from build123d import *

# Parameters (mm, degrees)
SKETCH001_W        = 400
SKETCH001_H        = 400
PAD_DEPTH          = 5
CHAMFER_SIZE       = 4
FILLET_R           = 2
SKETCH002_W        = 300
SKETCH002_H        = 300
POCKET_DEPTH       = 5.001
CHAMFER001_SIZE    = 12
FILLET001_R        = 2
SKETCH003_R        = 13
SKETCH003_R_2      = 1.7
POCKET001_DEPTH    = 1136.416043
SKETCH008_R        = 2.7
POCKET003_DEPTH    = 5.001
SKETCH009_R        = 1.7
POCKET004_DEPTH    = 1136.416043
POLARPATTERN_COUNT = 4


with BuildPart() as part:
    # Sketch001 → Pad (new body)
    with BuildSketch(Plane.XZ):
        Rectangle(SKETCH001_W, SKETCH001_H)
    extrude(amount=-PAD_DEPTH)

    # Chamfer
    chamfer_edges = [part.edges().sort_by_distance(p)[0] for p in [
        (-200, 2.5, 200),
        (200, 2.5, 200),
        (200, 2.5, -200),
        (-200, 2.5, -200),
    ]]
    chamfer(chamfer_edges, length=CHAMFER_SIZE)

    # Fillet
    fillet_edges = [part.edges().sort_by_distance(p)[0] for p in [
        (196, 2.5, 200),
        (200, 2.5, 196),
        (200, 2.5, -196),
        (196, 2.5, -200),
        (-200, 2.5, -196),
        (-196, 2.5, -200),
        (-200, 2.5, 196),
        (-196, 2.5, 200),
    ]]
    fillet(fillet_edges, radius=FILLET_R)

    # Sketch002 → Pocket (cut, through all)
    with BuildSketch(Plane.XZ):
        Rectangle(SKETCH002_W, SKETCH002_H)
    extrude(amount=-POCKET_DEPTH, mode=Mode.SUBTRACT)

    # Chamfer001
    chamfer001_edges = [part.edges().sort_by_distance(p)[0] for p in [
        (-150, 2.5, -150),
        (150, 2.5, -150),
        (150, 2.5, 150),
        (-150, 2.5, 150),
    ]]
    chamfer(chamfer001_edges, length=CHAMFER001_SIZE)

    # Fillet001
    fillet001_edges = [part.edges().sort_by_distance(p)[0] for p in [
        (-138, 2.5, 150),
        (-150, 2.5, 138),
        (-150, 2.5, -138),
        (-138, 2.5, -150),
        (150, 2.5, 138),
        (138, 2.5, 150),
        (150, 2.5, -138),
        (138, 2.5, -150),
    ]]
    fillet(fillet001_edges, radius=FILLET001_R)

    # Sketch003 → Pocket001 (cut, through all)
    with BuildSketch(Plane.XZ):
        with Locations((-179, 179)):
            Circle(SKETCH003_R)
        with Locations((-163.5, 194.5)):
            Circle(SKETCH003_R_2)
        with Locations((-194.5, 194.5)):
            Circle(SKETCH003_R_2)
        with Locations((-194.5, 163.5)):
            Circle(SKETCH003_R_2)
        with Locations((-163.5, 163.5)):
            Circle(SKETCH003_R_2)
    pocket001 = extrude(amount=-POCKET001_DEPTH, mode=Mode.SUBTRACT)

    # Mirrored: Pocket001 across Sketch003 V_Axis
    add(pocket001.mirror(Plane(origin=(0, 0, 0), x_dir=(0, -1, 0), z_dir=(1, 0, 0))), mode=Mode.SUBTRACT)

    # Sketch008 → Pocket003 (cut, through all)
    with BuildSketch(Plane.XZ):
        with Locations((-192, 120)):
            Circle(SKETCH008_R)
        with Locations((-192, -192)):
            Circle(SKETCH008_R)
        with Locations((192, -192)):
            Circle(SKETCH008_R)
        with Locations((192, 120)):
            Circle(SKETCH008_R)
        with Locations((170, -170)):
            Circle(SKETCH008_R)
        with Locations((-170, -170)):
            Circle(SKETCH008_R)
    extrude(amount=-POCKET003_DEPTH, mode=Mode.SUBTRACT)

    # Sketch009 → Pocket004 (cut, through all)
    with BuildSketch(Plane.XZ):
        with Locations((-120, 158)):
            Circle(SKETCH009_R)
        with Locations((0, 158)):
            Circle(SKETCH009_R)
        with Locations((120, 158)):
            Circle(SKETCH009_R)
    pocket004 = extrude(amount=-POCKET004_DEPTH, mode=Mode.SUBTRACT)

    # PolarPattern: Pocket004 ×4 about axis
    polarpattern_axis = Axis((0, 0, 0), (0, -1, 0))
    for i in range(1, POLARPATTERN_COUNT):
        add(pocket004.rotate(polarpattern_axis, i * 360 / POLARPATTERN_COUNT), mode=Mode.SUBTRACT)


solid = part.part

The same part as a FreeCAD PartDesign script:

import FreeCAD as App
import Part
import Sketcher
from FreeCAD import Vector
Q = App.Units.Quantity


def edges_at(feature, points):
    """Names of the edges that pass closest to the given points."""
    edges = feature.Shape.Edges
    near = lambda p: min(range(len(edges)), key=lambda i: edges[i].distToShape(Part.Vertex(*p))[0])
    return sorted({f"Edge{near(p) + 1}" for p in points})


def add_polygon(sketch, points):
    """Adds a closed chain of lines whose ends are joined by coincident constraints."""
    first, n = sketch.GeometryCount, len(points)
    for a, b in zip(points, points[1:] + points[:1]):
        sketch.addGeometry(Part.LineSegment(App.Vector(*a, 0), App.Vector(*b, 0)), False)
    for i in range(n):
        sketch.addConstraint(Sketcher.Constraint("Coincident", first + i, 2, first + (i + 1) % n, 1))

doc = App.newDocument("Part")
body = doc.addObject("PartDesign::Body", "Body")

# Sketch on XZ plane
sketch1 = body.newObject("Sketcher::SketchObject", "Sketch")
sketch1.AttachmentSupport = (doc.getObject("XZ_Plane"), [""])
sketch1.MapMode = "FlatFace"
add_polygon(sketch1, [(-200, 200), (-200, -200), (200, -200), (200, 200)])  # lines 0-3
sketch1.addConstraint([
    Sketcher.Constraint("Vertical", 0),
    Sketcher.Constraint("Horizontal", 1),
    Sketcher.Constraint("Vertical", 2),
    Sketcher.Constraint("Horizontal", 3),
    Sketcher.Constraint("Symmetric", 0, 2, 2, 2, -1, 1),
    Sketcher.Constraint("Equal", 3, 0),
    Sketcher.Constraint("DistanceX", 1, 1, 1, 2, Q("400 mm")),
])
pad1 = body.newObject("PartDesign::Pad", "Pad")
pad1.Profile = sketch1
pad1.Length = 5
pad1.Reversed = True
doc.recompute()

chamfer = body.newObject("PartDesign::Chamfer", "Chamfer")
chamfer.Base = (pad1, edges_at(pad1, [
    (-200, 2.5, 200),
    (200, 2.5, 200),
    (200, 2.5, -200),
    (-200, 2.5, -200),
]))
chamfer.Size = 4
doc.recompute()

fillet = body.newObject("PartDesign::Fillet", "Fillet")
fillet.Base = (chamfer, edges_at(chamfer, [
    (196, 2.5, 200),
    (200, 2.5, 196),
    (200, 2.5, -196),
    (196, 2.5, -200),
    (-200, 2.5, -196),
    (-196, 2.5, -200),
    (-200, 2.5, 196),
    (-196, 2.5, 200),
]))
fillet.Radius = 2

# Sketch on XZ plane
sketch2 = body.newObject("Sketcher::SketchObject", "Sketch001")
sketch2.AttachmentSupport = (doc.getObject("XZ_Plane"), [""])
sketch2.MapMode = "FlatFace"
add_polygon(sketch2, [(-150, 150), (-150, -150), (150, -150), (150, 150)])  # lines 0-3
sketch2.addConstraint([
    Sketcher.Constraint("Vertical", 0),
    Sketcher.Constraint("Horizontal", 1),
    Sketcher.Constraint("Vertical", 2),
    Sketcher.Constraint("Horizontal", 3),
    Sketcher.Constraint("Symmetric", 0, 2, 2, 2, -1, 1),
    Sketcher.Constraint("Equal", 3, 0),
    Sketcher.Constraint("DistanceX", 1, 1, 1, 2, Q("300 mm")),
])
pocket1 = body.newObject("PartDesign::Pocket", "Pocket")
pocket1.Profile = sketch2
pocket1.Type = "ThroughAll"
doc.recompute()

chamfer2 = body.newObject("PartDesign::Chamfer", "Chamfer001")
chamfer2.Base = (pocket1, edges_at(pocket1, [
    (-150, 2.5, -150),
    (150, 2.5, -150),
    (150, 2.5, 150),
    (-150, 2.5, 150),
]))
chamfer2.Size = 12
doc.recompute()

fillet2 = body.newObject("PartDesign::Fillet", "Fillet001")
fillet2.Base = (chamfer2, edges_at(chamfer2, [
    (-138, 2.5, 150),
    (-150, 2.5, 138),
    (-150, 2.5, -138),
    (-138, 2.5, -150),
    (150, 2.5, 138),
    (138, 2.5, 150),
    (150, 2.5, -138),
    (138, 2.5, -150),
]))
fillet2.Radius = 2

# Sketch on XZ plane
sketch3 = body.newObject("Sketcher::SketchObject", "Sketch002")
sketch3.AttachmentSupport = (doc.getObject("XZ_Plane"), [""])
sketch3.MapMode = "FlatFace"
sketch3.addGeometry([
    Part.Circle(Vector(-179, 179, 0), Vector(0, 0, 1), 13),  # 0
    Part.Circle(Vector(-163.5, 194.5, 0), Vector(0, 0, 1), 1.7),  # 1
    Part.Circle(Vector(-194.5, 194.5, 0), Vector(0, 0, 1), 1.7),  # 2
    Part.Circle(Vector(-194.5, 163.5, 0), Vector(0, 0, 1), 1.7),  # 3
    Part.Circle(Vector(-163.5, 163.5, 0), Vector(0, 0, 1), 1.7),  # 4
], False)
sketch3.addConstraint([
    Sketcher.Constraint("Equal", 1, 2),
    Sketcher.Constraint("Equal", 2, 3),
    Sketcher.Constraint("Equal", 3, 4),
    Sketcher.Constraint("Horizontal", 1, 3, 2, 3),
    Sketcher.Constraint("Horizontal", 3, 3, 4, 3),
    Sketcher.Constraint("Vertical", 2, 3, 3, 3),
    Sketcher.Constraint("Vertical", 1, 3, 4, 3),
    Sketcher.Constraint("Diameter", 0, Q("26 mm")),
    Sketcher.Constraint("Diameter", 1, Q("3.4 mm")),
    Sketcher.Constraint("DistanceX", 0, 3, -1, 1, Q("179 mm")),
    Sketcher.Constraint("DistanceY", -1, 1, 0, 3, Q("179 mm")),
    Sketcher.Constraint("DistanceX", 2, 3, 1, 3, Q("31 mm")),
    Sketcher.Constraint("DistanceY", 3, 3, 2, 3, Q("31 mm")),
    Sketcher.Constraint("DistanceX", 1, 3, -1, 1, Q("163.5 mm")),
    Sketcher.Constraint("DistanceY", -1, 1, 1, 3, Q("194.5 mm")),
])
pocket2 = body.newObject("PartDesign::Pocket", "Pocket001")
pocket2.Profile = sketch3
pocket2.Type = "ThroughAll"
doc.recompute()

mirrored = body.newObject("PartDesign::Mirrored", "Mirrored")
mirrored.Originals = [pocket2]
mirrored.MirrorPlane = (doc.getObject("YZ_Plane"), [""])
body.Tip = mirrored

# Sketch on XZ plane
sketch4 = body.newObject("Sketcher::SketchObject", "Sketch003")
sketch4.AttachmentSupport = (doc.getObject("XZ_Plane"), [""])
sketch4.MapMode = "FlatFace"
sketch4.addGeometry([
    Part.Circle(Vector(-192, 120, 0), Vector(0, 0, 1), 2.7),  # 0
    Part.Circle(Vector(-192, -192, 0), Vector(0, 0, 1), 2.7),  # 1
    Part.Circle(Vector(192, -192, 0), Vector(0, 0, 1), 2.7),  # 2
    Part.Circle(Vector(192, 120, 0), Vector(0, 0, 1), 2.7),  # 3
    Part.Circle(Vector(170, -170, 0), Vector(0, 0, 1), 2.7),  # 4
    Part.Circle(Vector(-170, -170, 0), Vector(0, 0, 1), 2.7),  # 5
], False)
sketch4.addConstraint([
    Sketcher.Constraint("Equal", 0, 1),
    Sketcher.Constraint("Equal", 1, 2),
    Sketcher.Constraint("Equal", 2, 3),
    Sketcher.Constraint("Equal", 3, 4),
    Sketcher.Constraint("Equal", 4, 5),
    Sketcher.Constraint("Symmetric", 1, 3, 2, 3, -2),
    Sketcher.Constraint("Symmetric", 0, 3, 3, 3, -2),
    Sketcher.Constraint("Symmetric", 4, 3, 5, 3, -2),
    Sketcher.Constraint("Vertical", 0, 3, 1, 3),
    Sketcher.Constraint("Diameter", 0, Q("5.4 mm")),
    Sketcher.Constraint("DistanceX", 0, 3, -1, 1, Q("192 mm")),
    Sketcher.Constraint("DistanceY", -1, 1, 0, 3, Q("120 mm")),
    Sketcher.Constraint("DistanceY", 1, 3, -1, 1, Q("192 mm")),
    Sketcher.Constraint("DistanceX", -1, 1, 4, 3, Q("170 mm")),
    Sketcher.Constraint("DistanceY", 4, 3, -1, 1, Q("170 mm")),
])
pocket3 = body.newObject("PartDesign::Pocket", "Pocket002")
pocket3.Profile = sketch4
pocket3.Type = "ThroughAll"

# Sketch on XZ plane
sketch5 = body.newObject("Sketcher::SketchObject", "Sketch004")
sketch5.AttachmentSupport = (doc.getObject("XZ_Plane"), [""])
sketch5.MapMode = "FlatFace"
sketch5.addGeometry([
    Part.Circle(Vector(-120, 158, 0), Vector(0, 0, 1), 1.7),
    Part.Circle(Vector(0, 158, 0), Vector(0, 0, 1), 1.7),
    Part.Circle(Vector(120, 158, 0), Vector(0, 0, 1), 1.7),
], False)
sketch5.addConstraint([
    Sketcher.Constraint("Equal", 0, 1),
    Sketcher.Constraint("Equal", 1, 2),
    Sketcher.Constraint("Symmetric", 0, 3, 2, 3, -2),
    Sketcher.Constraint("PointOnObject", 1, 3, -2),
    Sketcher.Constraint("Horizontal", 0, 3, 1, 3),
    Sketcher.Constraint("Diameter", 0, Q("3.4 mm")),
    Sketcher.Constraint("DistanceX", 0, 3, -1, 1, Q("120 mm")),
    Sketcher.Constraint("DistanceY", -1, 1, 0, 3, Q("158 mm")),
])
pocket4 = body.newObject("PartDesign::Pocket", "Pocket003")
pocket4.Profile = sketch5
pocket4.Type = "ThroughAll"
doc.recompute()

polarpattern = body.newObject("PartDesign::PolarPattern", "PolarPattern")
polarpattern.Originals = [pocket4]
polarpattern.Axis = (doc.getObject("Y_Axis"), [""])
polarpattern.Angle = 360
polarpattern.Occurrences = 4
body.Tip = polarpattern

doc.recompute()
